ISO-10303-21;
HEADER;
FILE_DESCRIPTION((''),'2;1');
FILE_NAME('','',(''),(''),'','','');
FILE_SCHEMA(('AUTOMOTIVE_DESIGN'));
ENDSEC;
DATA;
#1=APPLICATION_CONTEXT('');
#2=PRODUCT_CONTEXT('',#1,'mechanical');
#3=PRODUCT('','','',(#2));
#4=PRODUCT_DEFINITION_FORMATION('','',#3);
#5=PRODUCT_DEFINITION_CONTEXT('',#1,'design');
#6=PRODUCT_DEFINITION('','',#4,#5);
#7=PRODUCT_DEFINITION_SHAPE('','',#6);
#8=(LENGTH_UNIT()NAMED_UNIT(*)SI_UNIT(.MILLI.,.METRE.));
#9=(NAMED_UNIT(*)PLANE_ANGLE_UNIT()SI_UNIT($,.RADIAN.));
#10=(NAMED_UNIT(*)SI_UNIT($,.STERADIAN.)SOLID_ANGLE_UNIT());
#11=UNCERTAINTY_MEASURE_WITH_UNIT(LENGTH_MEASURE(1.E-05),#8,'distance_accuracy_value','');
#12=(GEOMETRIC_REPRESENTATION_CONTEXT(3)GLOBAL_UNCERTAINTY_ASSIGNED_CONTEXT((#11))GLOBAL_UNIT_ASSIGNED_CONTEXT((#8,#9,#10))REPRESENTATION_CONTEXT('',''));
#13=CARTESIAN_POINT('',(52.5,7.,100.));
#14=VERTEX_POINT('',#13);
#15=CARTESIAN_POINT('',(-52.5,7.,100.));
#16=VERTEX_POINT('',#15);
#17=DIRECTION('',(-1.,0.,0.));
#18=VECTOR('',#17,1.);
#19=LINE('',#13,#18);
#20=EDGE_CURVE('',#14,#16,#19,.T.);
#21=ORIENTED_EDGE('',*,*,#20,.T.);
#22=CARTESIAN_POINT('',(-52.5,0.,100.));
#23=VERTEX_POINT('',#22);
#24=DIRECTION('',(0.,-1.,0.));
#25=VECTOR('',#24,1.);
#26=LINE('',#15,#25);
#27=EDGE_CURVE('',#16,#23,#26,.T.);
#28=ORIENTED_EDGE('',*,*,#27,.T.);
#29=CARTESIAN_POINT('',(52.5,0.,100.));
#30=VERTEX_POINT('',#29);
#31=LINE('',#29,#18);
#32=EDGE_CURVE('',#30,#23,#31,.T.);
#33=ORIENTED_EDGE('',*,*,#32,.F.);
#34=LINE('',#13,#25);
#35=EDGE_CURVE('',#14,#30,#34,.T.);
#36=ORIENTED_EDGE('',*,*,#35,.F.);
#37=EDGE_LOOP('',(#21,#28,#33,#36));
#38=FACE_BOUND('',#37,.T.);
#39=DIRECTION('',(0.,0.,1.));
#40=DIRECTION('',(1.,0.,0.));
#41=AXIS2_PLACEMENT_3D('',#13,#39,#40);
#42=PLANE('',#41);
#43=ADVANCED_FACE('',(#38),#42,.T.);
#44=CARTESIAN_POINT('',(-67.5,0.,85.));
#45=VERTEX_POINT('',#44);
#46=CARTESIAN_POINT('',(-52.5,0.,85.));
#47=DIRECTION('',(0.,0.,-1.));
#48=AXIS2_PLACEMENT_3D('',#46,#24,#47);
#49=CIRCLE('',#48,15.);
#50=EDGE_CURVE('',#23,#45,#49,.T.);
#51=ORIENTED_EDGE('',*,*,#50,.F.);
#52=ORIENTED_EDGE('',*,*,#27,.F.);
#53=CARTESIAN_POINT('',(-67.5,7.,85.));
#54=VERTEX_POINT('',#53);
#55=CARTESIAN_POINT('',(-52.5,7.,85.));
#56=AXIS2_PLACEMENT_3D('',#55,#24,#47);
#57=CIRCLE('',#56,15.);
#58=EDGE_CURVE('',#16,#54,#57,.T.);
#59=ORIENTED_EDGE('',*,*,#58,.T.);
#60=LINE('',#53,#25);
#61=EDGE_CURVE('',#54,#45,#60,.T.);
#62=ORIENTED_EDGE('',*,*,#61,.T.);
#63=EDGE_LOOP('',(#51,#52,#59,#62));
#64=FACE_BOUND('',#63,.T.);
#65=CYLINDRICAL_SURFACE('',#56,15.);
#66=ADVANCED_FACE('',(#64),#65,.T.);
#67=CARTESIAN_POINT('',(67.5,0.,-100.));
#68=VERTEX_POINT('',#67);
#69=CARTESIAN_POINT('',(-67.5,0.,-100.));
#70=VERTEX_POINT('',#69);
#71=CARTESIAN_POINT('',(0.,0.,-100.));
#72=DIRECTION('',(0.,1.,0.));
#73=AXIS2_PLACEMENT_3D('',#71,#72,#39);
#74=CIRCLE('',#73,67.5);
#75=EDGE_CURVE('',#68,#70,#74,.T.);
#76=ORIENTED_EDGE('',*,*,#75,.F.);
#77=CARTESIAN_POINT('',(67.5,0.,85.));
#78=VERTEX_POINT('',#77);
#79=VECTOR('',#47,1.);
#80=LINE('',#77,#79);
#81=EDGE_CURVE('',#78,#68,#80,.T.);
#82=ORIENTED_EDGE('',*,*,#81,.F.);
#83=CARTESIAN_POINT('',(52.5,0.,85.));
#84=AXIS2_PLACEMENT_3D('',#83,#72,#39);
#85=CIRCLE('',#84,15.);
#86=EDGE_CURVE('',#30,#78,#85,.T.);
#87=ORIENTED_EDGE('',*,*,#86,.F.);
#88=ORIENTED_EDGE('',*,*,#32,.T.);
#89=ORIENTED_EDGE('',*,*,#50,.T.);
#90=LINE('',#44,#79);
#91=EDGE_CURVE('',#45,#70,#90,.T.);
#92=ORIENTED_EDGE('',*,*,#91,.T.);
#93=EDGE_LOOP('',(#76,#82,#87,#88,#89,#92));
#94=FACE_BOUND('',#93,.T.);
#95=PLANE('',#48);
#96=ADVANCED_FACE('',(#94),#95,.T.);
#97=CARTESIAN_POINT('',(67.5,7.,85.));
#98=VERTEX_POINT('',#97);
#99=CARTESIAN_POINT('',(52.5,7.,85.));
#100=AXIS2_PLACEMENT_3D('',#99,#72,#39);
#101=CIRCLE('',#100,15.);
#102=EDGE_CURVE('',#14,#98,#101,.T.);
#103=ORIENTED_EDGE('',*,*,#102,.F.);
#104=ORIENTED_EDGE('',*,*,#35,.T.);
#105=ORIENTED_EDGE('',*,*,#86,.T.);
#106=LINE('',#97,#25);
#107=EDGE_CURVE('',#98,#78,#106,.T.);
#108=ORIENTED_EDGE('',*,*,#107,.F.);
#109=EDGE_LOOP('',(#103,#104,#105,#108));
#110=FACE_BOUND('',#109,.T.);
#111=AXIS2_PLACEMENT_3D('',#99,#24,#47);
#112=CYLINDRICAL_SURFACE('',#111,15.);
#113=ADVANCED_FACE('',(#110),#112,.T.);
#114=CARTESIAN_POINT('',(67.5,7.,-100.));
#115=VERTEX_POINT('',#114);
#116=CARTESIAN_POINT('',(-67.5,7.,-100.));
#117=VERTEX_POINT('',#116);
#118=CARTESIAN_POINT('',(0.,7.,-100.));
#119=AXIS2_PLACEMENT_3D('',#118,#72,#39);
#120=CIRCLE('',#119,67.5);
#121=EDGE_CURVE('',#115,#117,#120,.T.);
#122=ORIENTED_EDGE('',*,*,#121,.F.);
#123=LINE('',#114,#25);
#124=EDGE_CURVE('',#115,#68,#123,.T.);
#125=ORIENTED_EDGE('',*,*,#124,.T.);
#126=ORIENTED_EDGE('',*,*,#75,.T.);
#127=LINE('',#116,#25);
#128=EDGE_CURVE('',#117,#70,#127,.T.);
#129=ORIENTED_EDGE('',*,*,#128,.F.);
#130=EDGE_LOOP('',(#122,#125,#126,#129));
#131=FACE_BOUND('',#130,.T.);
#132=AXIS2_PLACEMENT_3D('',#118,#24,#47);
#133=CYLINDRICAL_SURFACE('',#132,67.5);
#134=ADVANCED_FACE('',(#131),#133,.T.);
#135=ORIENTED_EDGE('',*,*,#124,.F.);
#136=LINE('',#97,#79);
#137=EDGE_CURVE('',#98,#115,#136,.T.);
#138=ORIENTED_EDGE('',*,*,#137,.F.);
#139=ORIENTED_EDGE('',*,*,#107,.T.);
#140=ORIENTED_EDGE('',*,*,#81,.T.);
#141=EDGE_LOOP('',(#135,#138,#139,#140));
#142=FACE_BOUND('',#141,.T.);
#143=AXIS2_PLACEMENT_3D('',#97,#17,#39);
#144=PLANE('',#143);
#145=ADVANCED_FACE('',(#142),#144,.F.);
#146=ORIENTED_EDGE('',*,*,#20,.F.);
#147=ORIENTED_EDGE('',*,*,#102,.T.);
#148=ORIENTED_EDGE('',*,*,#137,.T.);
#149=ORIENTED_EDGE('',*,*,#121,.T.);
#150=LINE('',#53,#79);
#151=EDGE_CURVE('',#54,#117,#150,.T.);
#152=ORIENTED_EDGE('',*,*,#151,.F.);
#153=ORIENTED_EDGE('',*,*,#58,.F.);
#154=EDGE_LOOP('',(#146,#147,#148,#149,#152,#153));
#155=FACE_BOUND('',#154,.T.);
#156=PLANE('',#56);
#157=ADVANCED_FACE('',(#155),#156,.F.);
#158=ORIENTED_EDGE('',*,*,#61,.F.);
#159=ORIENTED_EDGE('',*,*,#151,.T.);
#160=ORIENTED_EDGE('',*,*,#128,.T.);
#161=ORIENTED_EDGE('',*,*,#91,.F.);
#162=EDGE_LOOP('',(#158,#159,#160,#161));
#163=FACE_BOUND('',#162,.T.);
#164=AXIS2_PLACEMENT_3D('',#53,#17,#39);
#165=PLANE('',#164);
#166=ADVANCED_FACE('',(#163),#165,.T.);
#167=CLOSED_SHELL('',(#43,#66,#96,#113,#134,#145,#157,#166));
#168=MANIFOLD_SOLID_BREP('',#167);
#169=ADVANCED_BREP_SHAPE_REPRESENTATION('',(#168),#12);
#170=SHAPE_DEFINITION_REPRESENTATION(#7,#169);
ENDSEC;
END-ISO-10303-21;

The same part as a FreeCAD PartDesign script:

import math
import FreeCAD as App
import Part
import Sketcher
from FreeCAD import Vector

doc = App.newDocument("Part")
body = doc.addObject("PartDesign::Body", "Body")

sketch1 = doc.addObject("Sketcher::SketchObject", "Sketch")
body.addObject(sketch1)
sketch1.AttachmentSupport = (doc.XZ_Plane, [""])
sketch1.MapMode = "FlatFace"
sketch1.addGeometry(Part.LineSegment(Vector(-52, 100, 0), Vector(52, 100, 0)), False)
sketch1.addGeometry(Part.ArcOfCircle(Part.Circle(Vector(53, 85, 0), Vector(0, 0, 1), 15), math.radians(0), math.radians(90)), False)
sketch1.addGeometry(Part.LineSegment(Vector(68, 85, 0), Vector(68, -100, 0)), False)
sketch1.addGeometry(Part.ArcOfCircle(Part.Circle(Vector(0, -100, 0), Vector(0, 0, 1), 68), math.radians(180), math.radians(360)), False)
sketch1.addGeometry(Part.LineSegment(Vector(-68, -100, 0), Vector(-68, 85, 0)), False)
sketch1.addGeometry(Part.ArcOfCircle(Part.Circle(Vector(-53, 85, 0), Vector(0, 0, 1), 15), math.radians(90), math.radians(180)), False)
sketch1.addConstraint(Sketcher.Constraint("Tangent", 0, 2, 1, 2))
sketch1.addConstraint(Sketcher.Constraint("Tangent", 1, 1, 2, 1))
sketch1.addConstraint(Sketcher.Constraint("Tangent", 2, 2, 3, 2))
sketch1.addConstraint(Sketcher.Constraint("Tangent", 3, 1, 4, 1))
sketch1.addConstraint(Sketcher.Constraint("Tangent", 4, 2, 5, 2))
sketch1.addConstraint(Sketcher.Constraint("Tangent", 5, 1, 0, 1))
sketch1.addConstraint(Sketcher.Constraint("Horizontal", 0))
sketch1.addConstraint(Sketcher.Constraint("Vertical", 2))
sketch1.addConstraint(Sketcher.Constraint("Vertical", 4))
sketch1.addConstraint(Sketcher.Constraint("Equal", 1, 5))
sketch1.addConstraint(Sketcher.Constraint("PointOnObject", 3, 3, -2))
sketch1.addConstraint(Sketcher.Constraint("Radius", 1, 15.0))
sketch1.addConstraint(Sketcher.Constraint("Radius", 3, 67.5))
sketch1.addConstraint(Sketcher.Constraint("DistanceY", 2, 2, 2, 1, 185.0))
sketch1.addConstraint(Sketcher.Constraint("DistanceY", -1, 1, 1, 3, 85.0))
pad1 = doc.addObject("PartDesign::Pad", "Pad")
body.addObject(pad1)
pad1.Profile = sketch1
pad1.Length = 7
pad1.Reversed = True

doc.recompute()
